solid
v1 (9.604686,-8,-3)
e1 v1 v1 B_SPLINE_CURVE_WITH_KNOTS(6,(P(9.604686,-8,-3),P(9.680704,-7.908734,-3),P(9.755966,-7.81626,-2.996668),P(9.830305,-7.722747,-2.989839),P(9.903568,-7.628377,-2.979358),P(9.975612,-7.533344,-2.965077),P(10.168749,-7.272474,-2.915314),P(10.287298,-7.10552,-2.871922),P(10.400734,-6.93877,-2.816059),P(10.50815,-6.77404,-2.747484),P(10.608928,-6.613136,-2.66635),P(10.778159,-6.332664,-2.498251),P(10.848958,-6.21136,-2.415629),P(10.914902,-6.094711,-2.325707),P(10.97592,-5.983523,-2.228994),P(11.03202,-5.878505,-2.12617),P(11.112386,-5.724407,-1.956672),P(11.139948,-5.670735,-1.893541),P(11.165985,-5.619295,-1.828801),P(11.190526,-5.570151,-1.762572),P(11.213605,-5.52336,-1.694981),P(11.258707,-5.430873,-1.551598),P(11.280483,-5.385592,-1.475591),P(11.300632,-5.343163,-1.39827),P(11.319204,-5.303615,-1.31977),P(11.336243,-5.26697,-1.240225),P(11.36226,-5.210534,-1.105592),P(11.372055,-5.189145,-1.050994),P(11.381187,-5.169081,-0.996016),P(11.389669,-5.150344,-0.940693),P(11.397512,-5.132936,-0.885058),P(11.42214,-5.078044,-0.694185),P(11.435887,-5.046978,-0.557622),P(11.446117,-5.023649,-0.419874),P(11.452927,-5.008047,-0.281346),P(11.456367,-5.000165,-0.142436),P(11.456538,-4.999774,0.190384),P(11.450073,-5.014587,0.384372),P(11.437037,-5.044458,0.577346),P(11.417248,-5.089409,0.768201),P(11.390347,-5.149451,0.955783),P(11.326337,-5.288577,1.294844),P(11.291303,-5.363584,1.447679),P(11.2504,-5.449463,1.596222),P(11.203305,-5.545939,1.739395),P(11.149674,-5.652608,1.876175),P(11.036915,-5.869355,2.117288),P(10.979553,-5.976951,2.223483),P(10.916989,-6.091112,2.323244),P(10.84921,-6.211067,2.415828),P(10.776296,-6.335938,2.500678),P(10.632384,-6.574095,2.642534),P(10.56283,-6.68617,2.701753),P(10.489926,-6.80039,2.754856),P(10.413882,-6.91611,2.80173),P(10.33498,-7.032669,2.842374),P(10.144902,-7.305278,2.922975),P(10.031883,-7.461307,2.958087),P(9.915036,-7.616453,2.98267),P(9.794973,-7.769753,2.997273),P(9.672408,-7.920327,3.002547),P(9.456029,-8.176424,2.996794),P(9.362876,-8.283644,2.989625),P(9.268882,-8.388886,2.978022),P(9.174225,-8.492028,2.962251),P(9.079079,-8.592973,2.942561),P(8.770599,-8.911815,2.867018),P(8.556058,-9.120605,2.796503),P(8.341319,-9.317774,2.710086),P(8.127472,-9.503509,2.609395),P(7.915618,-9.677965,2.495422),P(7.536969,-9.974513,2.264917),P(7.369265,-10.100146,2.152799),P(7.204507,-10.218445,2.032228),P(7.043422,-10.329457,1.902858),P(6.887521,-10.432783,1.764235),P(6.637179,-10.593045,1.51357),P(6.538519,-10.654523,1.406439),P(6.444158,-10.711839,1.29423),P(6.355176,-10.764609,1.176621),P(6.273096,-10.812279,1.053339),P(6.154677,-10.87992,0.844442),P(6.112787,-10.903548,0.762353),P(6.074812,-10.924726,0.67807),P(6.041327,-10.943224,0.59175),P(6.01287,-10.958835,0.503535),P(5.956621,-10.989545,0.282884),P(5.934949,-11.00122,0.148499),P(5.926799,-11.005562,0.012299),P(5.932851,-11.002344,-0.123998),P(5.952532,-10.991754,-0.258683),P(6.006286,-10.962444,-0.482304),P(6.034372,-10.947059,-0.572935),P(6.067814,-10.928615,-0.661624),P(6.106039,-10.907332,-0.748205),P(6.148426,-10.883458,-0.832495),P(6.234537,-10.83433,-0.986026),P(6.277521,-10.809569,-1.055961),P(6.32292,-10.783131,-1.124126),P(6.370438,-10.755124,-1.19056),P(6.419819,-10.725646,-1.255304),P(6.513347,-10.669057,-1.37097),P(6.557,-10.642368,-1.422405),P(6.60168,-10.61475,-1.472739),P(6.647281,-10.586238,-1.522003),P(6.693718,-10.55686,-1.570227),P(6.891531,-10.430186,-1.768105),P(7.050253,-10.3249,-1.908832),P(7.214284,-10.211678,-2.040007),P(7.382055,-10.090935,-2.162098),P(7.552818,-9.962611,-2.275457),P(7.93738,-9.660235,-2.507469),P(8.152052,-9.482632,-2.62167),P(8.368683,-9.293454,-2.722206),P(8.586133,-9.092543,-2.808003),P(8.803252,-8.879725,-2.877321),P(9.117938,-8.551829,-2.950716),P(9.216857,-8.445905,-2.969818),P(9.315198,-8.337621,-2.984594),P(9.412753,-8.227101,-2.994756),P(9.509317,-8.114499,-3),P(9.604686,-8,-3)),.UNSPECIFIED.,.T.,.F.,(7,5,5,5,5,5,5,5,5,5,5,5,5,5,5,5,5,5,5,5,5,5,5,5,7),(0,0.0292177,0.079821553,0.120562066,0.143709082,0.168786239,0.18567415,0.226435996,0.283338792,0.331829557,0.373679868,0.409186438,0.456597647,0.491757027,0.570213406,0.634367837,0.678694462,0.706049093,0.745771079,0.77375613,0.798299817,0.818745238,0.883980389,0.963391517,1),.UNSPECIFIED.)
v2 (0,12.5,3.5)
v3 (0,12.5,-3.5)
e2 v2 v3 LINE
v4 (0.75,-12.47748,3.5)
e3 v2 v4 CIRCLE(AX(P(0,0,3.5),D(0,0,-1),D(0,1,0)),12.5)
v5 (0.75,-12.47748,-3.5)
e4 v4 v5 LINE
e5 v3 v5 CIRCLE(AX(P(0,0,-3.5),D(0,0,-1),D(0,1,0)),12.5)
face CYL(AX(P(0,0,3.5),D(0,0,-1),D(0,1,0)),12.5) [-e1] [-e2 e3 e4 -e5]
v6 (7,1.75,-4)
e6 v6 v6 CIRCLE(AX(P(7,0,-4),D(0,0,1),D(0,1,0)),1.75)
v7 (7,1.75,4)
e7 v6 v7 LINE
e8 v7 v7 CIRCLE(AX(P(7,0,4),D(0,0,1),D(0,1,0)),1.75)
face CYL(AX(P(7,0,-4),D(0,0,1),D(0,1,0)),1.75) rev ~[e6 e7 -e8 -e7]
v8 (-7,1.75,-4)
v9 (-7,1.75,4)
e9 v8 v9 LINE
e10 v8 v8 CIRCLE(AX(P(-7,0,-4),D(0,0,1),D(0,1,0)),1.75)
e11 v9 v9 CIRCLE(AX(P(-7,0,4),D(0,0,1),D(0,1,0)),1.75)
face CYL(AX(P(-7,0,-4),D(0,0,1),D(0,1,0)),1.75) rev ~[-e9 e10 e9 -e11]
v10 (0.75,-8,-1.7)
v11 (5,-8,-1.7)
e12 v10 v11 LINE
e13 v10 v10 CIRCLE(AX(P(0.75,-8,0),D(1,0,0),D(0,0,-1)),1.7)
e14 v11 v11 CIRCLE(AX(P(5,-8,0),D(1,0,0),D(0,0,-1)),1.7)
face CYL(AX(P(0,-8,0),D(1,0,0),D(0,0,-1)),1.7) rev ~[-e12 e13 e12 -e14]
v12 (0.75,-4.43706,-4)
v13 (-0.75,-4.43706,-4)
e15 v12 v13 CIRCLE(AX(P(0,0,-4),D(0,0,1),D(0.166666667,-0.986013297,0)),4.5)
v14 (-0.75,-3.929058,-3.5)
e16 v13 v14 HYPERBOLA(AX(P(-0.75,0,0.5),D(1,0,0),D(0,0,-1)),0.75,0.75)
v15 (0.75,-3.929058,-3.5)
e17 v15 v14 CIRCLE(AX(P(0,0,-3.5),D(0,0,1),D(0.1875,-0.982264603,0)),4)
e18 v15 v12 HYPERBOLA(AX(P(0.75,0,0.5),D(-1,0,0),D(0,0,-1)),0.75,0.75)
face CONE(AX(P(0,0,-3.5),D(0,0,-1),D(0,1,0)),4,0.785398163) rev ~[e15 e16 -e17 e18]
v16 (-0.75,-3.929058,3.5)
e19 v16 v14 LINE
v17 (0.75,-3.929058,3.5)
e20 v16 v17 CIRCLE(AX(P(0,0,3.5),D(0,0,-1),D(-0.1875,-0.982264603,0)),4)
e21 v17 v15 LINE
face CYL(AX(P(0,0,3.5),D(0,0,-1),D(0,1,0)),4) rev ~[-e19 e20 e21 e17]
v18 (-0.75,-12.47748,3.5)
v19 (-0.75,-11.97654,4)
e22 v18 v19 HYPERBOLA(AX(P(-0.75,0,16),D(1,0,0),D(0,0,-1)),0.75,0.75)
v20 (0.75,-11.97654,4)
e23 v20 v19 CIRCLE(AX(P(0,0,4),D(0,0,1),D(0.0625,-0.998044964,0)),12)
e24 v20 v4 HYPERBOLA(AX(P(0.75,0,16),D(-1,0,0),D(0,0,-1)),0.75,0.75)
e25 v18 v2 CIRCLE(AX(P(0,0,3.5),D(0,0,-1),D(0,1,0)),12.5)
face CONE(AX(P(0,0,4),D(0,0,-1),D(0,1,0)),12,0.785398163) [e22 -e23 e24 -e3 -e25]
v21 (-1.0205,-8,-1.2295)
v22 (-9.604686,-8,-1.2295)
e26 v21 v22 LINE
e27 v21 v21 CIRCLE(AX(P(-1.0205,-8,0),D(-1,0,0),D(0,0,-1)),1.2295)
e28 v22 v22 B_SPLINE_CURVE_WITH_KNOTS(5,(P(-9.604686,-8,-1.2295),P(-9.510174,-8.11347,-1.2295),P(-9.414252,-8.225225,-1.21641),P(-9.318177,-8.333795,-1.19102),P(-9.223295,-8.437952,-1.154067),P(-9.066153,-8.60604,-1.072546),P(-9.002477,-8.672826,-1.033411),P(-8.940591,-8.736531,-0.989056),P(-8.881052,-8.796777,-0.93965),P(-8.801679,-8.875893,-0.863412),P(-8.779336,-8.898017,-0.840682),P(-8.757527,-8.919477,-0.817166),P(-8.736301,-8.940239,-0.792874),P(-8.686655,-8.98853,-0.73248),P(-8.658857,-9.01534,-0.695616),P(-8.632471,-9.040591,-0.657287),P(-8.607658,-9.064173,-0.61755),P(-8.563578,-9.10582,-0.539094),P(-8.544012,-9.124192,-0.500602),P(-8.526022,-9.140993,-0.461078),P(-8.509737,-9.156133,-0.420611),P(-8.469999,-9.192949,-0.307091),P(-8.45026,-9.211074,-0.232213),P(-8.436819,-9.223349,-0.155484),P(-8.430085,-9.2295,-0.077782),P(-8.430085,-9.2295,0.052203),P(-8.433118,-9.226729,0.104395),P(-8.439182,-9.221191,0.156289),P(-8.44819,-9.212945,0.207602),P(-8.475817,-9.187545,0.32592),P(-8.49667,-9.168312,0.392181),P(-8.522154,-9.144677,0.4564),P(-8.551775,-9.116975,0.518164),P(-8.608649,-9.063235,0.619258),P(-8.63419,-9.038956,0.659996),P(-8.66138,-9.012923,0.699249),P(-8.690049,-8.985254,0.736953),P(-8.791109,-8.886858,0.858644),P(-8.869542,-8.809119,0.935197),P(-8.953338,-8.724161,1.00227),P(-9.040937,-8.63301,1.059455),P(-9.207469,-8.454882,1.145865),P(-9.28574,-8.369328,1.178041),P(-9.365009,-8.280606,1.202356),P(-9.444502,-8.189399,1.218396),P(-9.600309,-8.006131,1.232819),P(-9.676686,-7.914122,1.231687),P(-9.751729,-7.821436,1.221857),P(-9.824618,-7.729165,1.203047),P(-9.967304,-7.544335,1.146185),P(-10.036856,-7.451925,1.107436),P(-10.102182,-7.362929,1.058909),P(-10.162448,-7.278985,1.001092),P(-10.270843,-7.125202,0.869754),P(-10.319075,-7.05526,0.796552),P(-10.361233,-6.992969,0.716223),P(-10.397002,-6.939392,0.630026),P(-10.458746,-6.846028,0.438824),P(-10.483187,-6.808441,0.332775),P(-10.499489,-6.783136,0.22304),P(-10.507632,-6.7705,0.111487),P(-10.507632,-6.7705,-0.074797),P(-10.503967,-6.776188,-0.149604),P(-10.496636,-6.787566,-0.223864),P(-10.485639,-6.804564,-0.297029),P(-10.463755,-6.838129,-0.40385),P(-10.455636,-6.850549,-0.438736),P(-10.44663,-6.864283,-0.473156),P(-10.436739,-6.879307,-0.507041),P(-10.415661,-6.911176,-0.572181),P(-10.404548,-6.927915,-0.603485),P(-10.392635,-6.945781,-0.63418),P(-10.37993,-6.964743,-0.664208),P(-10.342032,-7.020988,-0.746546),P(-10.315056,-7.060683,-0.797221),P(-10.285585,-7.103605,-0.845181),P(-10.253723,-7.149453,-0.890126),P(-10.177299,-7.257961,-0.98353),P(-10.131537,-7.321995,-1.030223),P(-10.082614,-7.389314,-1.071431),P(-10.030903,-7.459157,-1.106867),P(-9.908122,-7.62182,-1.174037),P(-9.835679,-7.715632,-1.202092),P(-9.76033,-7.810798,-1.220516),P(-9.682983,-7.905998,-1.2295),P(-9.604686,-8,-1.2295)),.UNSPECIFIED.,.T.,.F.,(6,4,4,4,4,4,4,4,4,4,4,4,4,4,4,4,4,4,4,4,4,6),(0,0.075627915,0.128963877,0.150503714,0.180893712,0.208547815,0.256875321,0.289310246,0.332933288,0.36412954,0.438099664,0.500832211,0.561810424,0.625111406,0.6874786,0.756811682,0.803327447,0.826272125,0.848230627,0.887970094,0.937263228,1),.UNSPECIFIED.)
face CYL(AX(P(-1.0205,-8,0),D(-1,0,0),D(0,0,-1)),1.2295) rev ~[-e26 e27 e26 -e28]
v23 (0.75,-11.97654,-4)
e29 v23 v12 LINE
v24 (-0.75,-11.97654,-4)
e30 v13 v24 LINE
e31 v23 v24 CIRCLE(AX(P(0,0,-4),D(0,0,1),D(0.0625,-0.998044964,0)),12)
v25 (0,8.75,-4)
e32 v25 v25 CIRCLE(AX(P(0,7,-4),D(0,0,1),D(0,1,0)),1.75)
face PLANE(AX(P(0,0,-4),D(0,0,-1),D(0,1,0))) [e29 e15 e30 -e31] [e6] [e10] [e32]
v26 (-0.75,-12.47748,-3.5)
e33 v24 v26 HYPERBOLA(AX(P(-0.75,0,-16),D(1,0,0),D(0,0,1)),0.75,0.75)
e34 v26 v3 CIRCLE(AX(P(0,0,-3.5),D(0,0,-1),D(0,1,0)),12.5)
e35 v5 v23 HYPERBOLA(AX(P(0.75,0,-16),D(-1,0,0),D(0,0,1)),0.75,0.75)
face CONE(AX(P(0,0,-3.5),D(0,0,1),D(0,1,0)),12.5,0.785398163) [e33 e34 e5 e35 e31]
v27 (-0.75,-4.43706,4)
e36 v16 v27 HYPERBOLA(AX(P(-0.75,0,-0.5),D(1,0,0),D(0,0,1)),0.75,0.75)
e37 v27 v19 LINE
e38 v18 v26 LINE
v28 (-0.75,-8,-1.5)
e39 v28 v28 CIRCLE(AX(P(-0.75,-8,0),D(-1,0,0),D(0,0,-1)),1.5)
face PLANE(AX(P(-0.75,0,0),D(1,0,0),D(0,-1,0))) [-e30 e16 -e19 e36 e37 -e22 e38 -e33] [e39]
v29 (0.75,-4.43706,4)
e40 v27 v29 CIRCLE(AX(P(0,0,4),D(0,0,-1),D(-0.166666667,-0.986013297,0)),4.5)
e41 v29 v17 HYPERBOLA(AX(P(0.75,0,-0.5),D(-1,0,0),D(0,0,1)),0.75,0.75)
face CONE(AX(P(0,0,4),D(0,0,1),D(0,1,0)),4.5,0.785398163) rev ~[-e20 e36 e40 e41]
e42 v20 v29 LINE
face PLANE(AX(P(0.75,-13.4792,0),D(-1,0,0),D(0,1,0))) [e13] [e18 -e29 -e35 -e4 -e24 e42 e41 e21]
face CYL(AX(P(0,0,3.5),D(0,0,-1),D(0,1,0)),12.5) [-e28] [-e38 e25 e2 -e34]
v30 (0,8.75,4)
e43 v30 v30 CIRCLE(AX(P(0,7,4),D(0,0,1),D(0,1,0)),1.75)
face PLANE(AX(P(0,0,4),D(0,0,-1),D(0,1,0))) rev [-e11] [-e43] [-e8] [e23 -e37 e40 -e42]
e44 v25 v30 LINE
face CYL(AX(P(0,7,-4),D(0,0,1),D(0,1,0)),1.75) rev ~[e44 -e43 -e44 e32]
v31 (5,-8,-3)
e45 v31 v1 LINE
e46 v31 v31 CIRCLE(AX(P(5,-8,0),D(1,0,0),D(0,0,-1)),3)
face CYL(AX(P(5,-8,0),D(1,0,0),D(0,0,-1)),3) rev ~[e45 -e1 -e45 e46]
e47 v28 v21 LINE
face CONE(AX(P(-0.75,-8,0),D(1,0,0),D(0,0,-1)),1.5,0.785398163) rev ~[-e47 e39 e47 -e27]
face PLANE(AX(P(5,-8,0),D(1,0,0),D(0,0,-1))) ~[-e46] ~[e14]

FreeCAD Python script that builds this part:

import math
import FreeCAD as App
import Part
import Sketcher
from FreeCAD import Vector


def add_polygon(sketch, points):
    """Adds a closed chain of lines whose ends are joined by coincident constraints."""
    first, n = sketch.GeometryCount, len(points)
    for a, b in zip(points, points[1:] + points[:1]):
        sketch.addGeometry(Part.LineSegment(App.Vector(*a, 0), App.Vector(*b, 0)), False)
    for i in range(n):
        sketch.addConstraint(Sketcher.Constraint("Coincident", first + i, 2, first + (i + 1) % n, 1))

doc = App.newDocument("Part")
body = doc.addObject("PartDesign::Body", "Body")

# Sketch on YZ plane
sketch1 = body.newObject("Sketcher::SketchObject", "Sketch")
sketch1.AttachmentSupport = (doc.getObject("YZ_Plane"), [""])
sketch1.MapMode = "FlatFace"
add_polygon(sketch1, [(0, 4), (0, -4), (12, -4), (12.5, -3.5), (12.5, 3.5), (12, 4)])  # lines 0-5
sketch1.addConstraint([
    Sketcher.Constraint("Vertical", 0),
    Sketcher.Constraint("Horizontal", 1),
    Sketcher.Constraint("Vertical", 3),
    Sketcher.Constraint("Horizontal", 5),
    Sketcher.Constraint("Symmetric", 0, 2, 5, 2, -1, 1),
    Sketcher.Constraint("Perpendicular", 2, 4),
    Sketcher.Constraint("Vertical", 1, 2, 4, 2),
    Sketcher.Constraint("Equal", 2, 4),
    Sketcher.Constraint("DistanceX", 1, 1, 1, 2, 12.0),
    Sketcher.Constraint("DistanceY", 0, 2, 0, 1, 8.0),
    Sketcher.Constraint("DistanceY", 3, 1, 3, 2, 7.0),
])
revolution = body.newObject("PartDesign::Revolution", "Revolution")
revolution.Profile = sketch1
revolution.ReferenceAxis = (sketch1, ["V_Axis"])
revolution.Angle = 360

# Sketch on YZ plane
sketch2 = body.newObject("Sketcher::SketchObject", "Sketch001")
sketch2.AttachmentSupport = (doc.getObject("YZ_Plane"), [""])
sketch2.MapMode = "FlatFace"
add_polygon(sketch2, [(0, 4), (0, -4), (4.5, -4), (4, -3.5), (4, 3.5), (4.5, 4)])  # lines 0-5
sketch2.addConstraint([
    Sketcher.Constraint("Vertical", 0),
    Sketcher.Constraint("Horizontal", 1),
    Sketcher.Constraint("Vertical", 3),
    Sketcher.Constraint("Horizontal", 5),
    Sketcher.Constraint("Symmetric", 0, 2, 5, 2, -1, 1),
    Sketcher.Constraint("Perpendicular", 2, 4),
    Sketcher.Constraint("Vertical", 1, 2, 4, 2),
    Sketcher.Constraint("Equal", 2, 4),
    Sketcher.Constraint("DistanceY", 0, 2, 0, 1, 8.0),
    Sketcher.Constraint("DistanceY", 3, 1, 3, 2, 7.0),
    Sketcher.Constraint("DistanceX", 1, 1, 1, 2, 4.5),
])
groove = body.newObject("PartDesign::Groove", "Groove")
groove.Profile = sketch2
groove.ReferenceAxis = (sketch2, ["V_Axis"])
groove.Angle = 360

# Sketch on XY plane
sketch3 = body.newObject("Sketcher::SketchObject", "Sketch002")
sketch3.AttachmentSupport = (doc.getObject("XY_Plane"), [""])
sketch3.MapMode = "FlatFace"
sketch3.addGeometry([
    Part.LineSegment(Vector(-0.75, 0, 0), Vector(-0.75, -13.4792, 0)),
    Part.ArcOfCircle(Part.Circle(Vector(0, 0, 0), Vector(0, 0, 1), 13.500049), math.radians(-93.184727), math.radians(-86.815273)),
    Part.LineSegment(Vector(0.75, -13.4792, 0), Vector(0.75, 0, 0)),
    Part.LineSegment(Vector(0.75, 0, 0), Vector(-0.75, 0, 0)),
], False)
sketch3.addConstraint([
    Sketcher.Constraint("Coincident", 0, 2, 1, 1),
    Sketcher.Constraint("Coincident", 1, 2, 2, 1),
    Sketcher.Constraint("Coincident", 2, 2, 3, 1),
    Sketcher.Constraint("Coincident", 3, 2, 0, 1),
    Sketcher.Constraint("Vertical", 0),
    Sketcher.Constraint("Vertical", 2),
    Sketcher.Constraint("Horizontal", 3),
    Sketcher.Constraint("Coincident", 1, 3, -1, 1),
    Sketcher.Constraint("Symmetric", 2, 2, 3, 2, -1, 1),
    Sketcher.Constraint("Radius", 1, 13.5),
    Sketcher.Constraint("DistanceX", 3, 2, 3, 1, 1.5),
])
pocket1 = body.newObject("PartDesign::Pocket", "Pocket")
pocket1.Profile = sketch3
pocket1.Length = 8
pocket1.Midplane = True

# Sketch on XY plane
sketch4 = body.newObject("Sketcher::SketchObject", "Sketch003")
sketch4.AttachmentSupport = (doc.getObject("XY_Plane"), [""])
sketch4.MapMode = "FlatFace"
sketch4.AttachmentOffset = App.Placement(Vector(0, 0, -4), App.Rotation())
sketch4.addGeometry(Part.Circle(Vector(7, 0, 0), Vector(0, 0, 1), 1.75), False)
sketch4.addConstraint([
    Sketcher.Constraint("PointOnObject", 0, 3, -1),
    Sketcher.Constraint("Diameter", 0, 3.5),
    Sketcher.Constraint("DistanceX", -1, 1, 0, 3, 7.0),
])
doc.recompute()
hole = body.newObject("PartDesign::Hole", "Hole")
hole.Profile = sketch4
hole.ThreadType = "None"
hole.Diameter = 3.5
hole.DepthType = "Dimension"
hole.Depth = 8
hole.DrillPoint = "Flat"
hole.Reversed = True

# Sketch on XY plane
sketch5 = body.newObject("Sketcher::SketchObject", "Sketch004")
sketch5.AttachmentSupport = (doc.getObject("XY_Plane"), [""])
sketch5.MapMode = "FlatFace"
sketch5.AttachmentOffset = App.Placement(Vector(0, 0, -4), App.Rotation())
sketch5.addGeometry(Part.Circle(Vector(-7, 0, 0), Vector(0, 0, 1), 1.75), False)
sketch5.addConstraint([
    Sketcher.Constraint("PointOnObject", 0, 3, -1),
    Sketcher.Constraint("Diameter", 0, 3.5),
    Sketcher.Constraint("DistanceX", 0, 3, -1, 1, 7.0),
])
doc.recompute()
hole2 = body.newObject("PartDesign::Hole", "Hole001")
hole2.Profile = sketch5
hole2.ThreadType = "None"
hole2.Diameter = 3.5
hole2.DepthType = "Dimension"
hole2.Depth = 8
hole2.DrillPoint = "Flat"
hole2.Reversed = True

# Sketch on XY plane
sketch6 = body.newObject("Sketcher::SketchObject", "Sketch005")
sketch6.AttachmentSupport = (doc.getObject("XY_Plane"), [""])
sketch6.MapMode = "FlatFace"
sketch6.AttachmentOffset = App.Placement(Vector(0, 0, -4), App.Rotation())
sketch6.addGeometry(Part.Circle(Vector(0, 7, 0), Vector(0, 0, 1), 1.75), False)
sketch6.addConstraint([
    Sketcher.Constraint("PointOnObject", 0, 3, -2),
    Sketcher.Constraint("Diameter", 0, 3.5),
    Sketcher.Constraint("DistanceY", -1, 1, 0, 3, 7.0),
])
doc.recompute()
hole3 = body.newObject("PartDesign::Hole", "Hole002")
hole3.Profile = sketch6
hole3.ThreadType = "None"
hole3.Diameter = 3.5
hole3.DepthType = "Dimension"
hole3.Depth = 8
hole3.DrillPoint = "Flat"
hole3.Reversed = True

# Sketch on XZ plane
sketch7 = body.newObject("Sketcher::SketchObject", "Sketch006")
sketch7.AttachmentSupport = (doc.getObject("XZ_Plane"), [""])
sketch7.MapMode = "FlatFace"
sketch7.AttachmentOffset = App.Placement(Vector(0, 0, 8), App.Rotation())
add_polygon(sketch7, [(0, 0), (12.5, 0), (12.5, -3), (5, -3), (5, -1.7), (0, -1.7)])  # lines 0-5
sketch7.addConstraint([
    Sketcher.Constraint("Horizontal", 0),
    Sketcher.Constraint("Vertical", 1),
    Sketcher.Constraint("Horizontal", 2),
    Sketcher.Constraint("Vertical", 3),
    Sketcher.Constraint("Horizontal", 4),
    Sketcher.Constraint("Vertical", 5),
    Sketcher.Constraint("Coincident", 5, 2, -1, 1),
    Sketcher.Constraint("DistanceX", 4, 2, 4, 1, 5.0),
    Sketcher.Constraint("DistanceY", 1, 2, 1, 1, 3.0),
    Sketcher.Constraint("DistanceX", 0, 1, 0, 2, 12.5),
    Sketcher.Constraint("DistanceY", 3, 1, 3, 2, 1.3),
])
groove2 = body.newObject("PartDesign::Groove", "Groove001")
groove2.Profile = sketch7
groove2.ReferenceAxis = (sketch7, ["H_Axis"])
groove2.Angle = 360

# Sketch on YZ plane
sketch8 = body.newObject("Sketcher::SketchObject", "Sketch007")
sketch8.AttachmentSupport = (doc.getObject("YZ_Plane"), [""])
sketch8.MapMode = "FlatFace"
sketch8.AttachmentOffset = App.Placement(Vector(0, 0, -0.75), App.Rotation())
sketch8.addGeometry(Part.Circle(Vector(-8, 0, 0), Vector(0, 0, 1), 1.2295), False)
sketch8.addConstraint([
    Sketcher.Constraint("PointOnObject", 0, 3, -1),
    Sketcher.Constraint("Diameter", 0, 2.459),
    Sketcher.Constraint("DistanceX", 0, 3, -1, 1, 8.0),
])
doc.recompute()
hole4 = body.newObject("PartDesign::Hole", "Hole003")
hole4.Profile = sketch8
hole4.ThreadType = "None"
hole4.Diameter = 2.459
hole4.DepthType = "Dimension"
hole4.Depth = 9.9271
hole4.DrillPoint = "Flat"
hole4.HoleCutType = "Countersink"
hole4.HoleCutDiameter = 3
hole4.HoleCutCountersinkAngle = 90

doc.recompute()
